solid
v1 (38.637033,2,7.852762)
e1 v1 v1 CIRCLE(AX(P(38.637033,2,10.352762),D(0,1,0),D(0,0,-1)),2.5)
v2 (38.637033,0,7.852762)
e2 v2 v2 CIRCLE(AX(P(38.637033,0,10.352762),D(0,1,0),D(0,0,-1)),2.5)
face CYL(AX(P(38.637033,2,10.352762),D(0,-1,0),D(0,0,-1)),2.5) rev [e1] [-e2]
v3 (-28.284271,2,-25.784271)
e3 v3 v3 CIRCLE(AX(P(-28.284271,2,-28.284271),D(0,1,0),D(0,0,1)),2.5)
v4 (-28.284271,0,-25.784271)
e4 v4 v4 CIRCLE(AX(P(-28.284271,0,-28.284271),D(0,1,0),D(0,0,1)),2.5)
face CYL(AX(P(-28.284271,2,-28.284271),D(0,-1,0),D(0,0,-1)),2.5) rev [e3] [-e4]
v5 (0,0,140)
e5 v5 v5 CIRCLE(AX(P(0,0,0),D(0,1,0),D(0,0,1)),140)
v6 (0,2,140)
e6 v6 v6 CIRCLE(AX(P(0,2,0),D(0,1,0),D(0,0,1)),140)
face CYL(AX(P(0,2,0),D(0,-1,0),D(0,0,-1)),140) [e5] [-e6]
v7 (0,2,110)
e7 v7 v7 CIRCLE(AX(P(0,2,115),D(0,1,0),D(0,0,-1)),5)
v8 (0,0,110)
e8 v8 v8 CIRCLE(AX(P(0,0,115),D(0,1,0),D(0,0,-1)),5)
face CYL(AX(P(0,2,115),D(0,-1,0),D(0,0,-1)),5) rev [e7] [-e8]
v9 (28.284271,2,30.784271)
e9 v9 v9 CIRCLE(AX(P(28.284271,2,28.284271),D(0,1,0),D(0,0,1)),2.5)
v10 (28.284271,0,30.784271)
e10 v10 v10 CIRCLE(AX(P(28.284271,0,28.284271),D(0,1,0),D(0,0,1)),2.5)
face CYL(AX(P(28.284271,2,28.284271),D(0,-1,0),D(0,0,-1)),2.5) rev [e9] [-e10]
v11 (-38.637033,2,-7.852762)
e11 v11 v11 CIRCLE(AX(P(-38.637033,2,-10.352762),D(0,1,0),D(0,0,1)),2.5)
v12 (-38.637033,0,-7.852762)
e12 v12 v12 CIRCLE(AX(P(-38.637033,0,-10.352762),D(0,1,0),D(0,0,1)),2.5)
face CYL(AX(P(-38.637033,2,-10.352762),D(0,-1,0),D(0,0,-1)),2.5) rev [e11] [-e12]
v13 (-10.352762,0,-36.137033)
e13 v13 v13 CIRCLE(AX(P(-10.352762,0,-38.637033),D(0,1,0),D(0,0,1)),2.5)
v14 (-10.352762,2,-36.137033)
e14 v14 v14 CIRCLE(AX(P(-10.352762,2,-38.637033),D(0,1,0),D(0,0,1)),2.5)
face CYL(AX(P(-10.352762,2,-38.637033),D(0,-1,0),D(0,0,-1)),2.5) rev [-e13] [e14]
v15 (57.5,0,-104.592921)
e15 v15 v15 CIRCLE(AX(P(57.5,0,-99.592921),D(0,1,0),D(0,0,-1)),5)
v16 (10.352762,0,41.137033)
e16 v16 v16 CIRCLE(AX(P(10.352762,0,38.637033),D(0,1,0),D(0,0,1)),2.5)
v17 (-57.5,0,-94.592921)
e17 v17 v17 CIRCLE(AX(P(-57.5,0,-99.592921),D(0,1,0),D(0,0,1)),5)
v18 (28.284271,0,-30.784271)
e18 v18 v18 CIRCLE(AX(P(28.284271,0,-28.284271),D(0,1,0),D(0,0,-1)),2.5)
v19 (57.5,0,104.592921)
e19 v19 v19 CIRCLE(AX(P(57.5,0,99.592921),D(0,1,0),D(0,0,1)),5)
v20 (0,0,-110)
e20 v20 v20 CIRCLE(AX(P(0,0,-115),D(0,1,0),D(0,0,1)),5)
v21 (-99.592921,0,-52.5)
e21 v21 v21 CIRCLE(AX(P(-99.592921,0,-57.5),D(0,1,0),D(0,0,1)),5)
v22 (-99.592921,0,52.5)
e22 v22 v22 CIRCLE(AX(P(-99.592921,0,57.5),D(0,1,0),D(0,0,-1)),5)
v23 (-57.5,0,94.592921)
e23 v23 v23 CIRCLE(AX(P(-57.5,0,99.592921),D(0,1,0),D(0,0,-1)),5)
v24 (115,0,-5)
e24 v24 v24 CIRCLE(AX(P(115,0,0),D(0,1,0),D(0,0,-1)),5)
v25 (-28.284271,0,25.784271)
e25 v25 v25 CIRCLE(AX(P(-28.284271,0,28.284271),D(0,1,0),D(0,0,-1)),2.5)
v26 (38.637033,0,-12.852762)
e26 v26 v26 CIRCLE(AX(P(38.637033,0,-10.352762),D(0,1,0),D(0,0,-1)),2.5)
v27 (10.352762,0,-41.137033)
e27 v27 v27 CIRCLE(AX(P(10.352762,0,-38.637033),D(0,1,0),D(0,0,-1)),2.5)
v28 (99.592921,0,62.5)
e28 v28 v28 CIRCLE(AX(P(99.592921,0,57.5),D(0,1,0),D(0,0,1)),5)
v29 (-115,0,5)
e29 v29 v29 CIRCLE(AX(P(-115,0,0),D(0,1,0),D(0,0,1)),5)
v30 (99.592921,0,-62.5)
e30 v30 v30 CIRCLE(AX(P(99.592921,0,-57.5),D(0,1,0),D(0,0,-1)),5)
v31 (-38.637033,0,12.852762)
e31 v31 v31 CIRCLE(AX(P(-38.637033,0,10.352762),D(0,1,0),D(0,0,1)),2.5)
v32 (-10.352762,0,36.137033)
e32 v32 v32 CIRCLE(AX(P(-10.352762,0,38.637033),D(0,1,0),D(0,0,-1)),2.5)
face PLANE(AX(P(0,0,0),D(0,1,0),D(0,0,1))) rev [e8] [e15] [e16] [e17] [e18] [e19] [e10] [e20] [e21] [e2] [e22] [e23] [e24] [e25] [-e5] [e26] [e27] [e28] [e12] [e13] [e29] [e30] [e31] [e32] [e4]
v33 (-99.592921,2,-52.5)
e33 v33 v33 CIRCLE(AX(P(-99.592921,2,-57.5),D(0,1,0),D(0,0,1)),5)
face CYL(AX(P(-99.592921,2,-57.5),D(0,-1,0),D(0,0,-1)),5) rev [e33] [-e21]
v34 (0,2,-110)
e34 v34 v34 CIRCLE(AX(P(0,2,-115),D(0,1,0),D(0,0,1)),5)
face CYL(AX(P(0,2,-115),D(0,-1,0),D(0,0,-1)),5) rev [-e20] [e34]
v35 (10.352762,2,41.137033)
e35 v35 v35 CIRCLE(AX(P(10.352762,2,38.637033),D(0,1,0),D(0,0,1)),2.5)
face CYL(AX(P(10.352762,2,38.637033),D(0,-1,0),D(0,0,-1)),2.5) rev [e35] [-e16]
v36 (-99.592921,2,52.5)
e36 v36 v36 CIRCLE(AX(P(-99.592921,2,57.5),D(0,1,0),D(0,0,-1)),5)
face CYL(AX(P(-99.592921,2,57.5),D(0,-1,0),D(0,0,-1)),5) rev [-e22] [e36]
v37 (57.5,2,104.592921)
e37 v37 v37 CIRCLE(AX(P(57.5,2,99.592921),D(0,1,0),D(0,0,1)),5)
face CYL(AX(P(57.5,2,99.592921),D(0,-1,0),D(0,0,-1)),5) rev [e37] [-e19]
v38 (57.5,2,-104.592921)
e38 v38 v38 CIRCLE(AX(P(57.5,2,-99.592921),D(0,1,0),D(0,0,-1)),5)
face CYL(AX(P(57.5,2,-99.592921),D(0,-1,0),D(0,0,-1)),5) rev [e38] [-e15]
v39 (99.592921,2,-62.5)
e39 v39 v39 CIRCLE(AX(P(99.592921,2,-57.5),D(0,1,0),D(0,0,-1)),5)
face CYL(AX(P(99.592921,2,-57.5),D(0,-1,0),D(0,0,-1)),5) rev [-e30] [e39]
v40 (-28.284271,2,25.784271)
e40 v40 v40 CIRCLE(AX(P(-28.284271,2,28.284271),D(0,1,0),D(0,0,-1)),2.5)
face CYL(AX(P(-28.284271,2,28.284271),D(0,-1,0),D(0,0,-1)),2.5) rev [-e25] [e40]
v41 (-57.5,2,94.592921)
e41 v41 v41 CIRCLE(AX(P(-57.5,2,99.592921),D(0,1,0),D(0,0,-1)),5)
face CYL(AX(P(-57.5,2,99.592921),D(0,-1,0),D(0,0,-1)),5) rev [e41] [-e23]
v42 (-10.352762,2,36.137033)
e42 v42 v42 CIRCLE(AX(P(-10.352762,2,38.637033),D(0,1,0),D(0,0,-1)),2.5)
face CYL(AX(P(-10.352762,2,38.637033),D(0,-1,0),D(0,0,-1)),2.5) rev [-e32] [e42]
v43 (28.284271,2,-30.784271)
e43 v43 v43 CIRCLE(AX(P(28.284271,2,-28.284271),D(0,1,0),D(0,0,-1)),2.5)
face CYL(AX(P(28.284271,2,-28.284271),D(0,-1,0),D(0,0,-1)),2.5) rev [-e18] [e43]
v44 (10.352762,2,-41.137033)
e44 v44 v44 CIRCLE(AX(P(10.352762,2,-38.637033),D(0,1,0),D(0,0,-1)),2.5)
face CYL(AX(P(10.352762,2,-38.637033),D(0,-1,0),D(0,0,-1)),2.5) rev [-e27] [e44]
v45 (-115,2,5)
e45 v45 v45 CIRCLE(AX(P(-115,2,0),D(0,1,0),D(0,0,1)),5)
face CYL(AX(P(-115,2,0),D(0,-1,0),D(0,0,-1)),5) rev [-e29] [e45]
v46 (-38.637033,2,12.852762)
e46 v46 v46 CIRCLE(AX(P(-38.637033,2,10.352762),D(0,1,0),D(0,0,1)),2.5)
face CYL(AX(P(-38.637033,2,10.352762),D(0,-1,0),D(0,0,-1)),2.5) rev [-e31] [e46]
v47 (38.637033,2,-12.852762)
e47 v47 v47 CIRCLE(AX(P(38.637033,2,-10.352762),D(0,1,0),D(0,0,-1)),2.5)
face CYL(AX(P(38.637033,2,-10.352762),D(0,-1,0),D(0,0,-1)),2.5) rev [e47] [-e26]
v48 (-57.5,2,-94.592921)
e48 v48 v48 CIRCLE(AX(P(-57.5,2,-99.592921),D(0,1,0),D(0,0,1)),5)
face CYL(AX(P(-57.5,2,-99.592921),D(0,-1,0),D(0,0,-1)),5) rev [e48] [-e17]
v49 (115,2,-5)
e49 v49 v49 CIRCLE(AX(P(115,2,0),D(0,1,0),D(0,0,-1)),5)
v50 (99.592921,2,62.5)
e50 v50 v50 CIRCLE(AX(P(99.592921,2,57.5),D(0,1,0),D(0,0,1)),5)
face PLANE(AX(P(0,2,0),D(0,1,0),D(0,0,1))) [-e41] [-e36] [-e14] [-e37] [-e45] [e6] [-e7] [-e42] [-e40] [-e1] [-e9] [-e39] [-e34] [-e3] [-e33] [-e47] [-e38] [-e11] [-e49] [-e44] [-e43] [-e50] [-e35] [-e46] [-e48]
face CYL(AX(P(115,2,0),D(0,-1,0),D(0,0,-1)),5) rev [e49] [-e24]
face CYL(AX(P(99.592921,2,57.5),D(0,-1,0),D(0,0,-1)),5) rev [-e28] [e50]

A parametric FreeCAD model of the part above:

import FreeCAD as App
import Part
import Sketcher

V = App.Vector
Q = App.Units.Quantity

doc = App.newDocument("Part")
body = doc.addObject("PartDesign::Body", "Body")

sketch1 = doc.addObject("Sketcher::SketchObject", "Sketch")
body.addObject(sketch1)
sketch1.AttachmentSupport = (doc.XZ_Plane, [""])
sketch1.MapMode = "FlatFace"
sketch1.addGeometry([
    Part.Circle(V(0, 0, 0), V(0, 0, 1), 140),
    Part.Circle(V(-99.6, -57.5, 0), V(0, 0, 1), 5),
    Part.Circle(V(-57.5, -99.6, 0), V(0, 0, 1), 5),
    Part.Circle(V(0, -115, 0), V(0, 0, 1), 5),
    Part.Circle(V(-38.6, -10.4, 0), V(0, 0, 1), 2.5),
    Part.Circle(V(-10.4, -38.6, 0), V(0, 0, 1), 2.5),
    Part.Circle(V(-28.3, -28.3, 0), V(0, 0, 1), 2.5),
    Part.Circle(V(-115, 0, 0), V(0, 0, 1), 5),
    Part.Circle(V(-99.6, 57.5, 0), V(0, 0, 1), 5),
    Part.Circle(V(-38.6, 10.4, 0), V(0, 0, 1), 2.5),
    Part.Circle(V(-28.3, 28.3, 0), V(0, 0, 1), 2.5),
    Part.Circle(V(-10.4, 38.6, 0), V(0, 0, 1), 2.5),
    Part.Circle(V(-57.5, 99.6, 0), V(0, 0, 1), 5),
    Part.Circle(V(57.5, -99.6, 0), V(0, 0, 1), 5),
    Part.Circle(V(10.4, -38.6, 0), V(0, 0, 1), 2.5),
    Part.Circle(V(28.3, -28.3, 0), V(0, 0, 1), 2.5),
    Part.Circle(V(38.6, -10.4, 0), V(0, 0, 1), 2.5),
    Part.Circle(V(99.6, -57.5, 0), V(0, 0, 1), 5),
    Part.Circle(V(115, 0, 0), V(0, 0, 1), 5),
    Part.Circle(V(28.3, 28.3, 0), V(0, 0, 1), 2.5),
    Part.Circle(V(10.4, 38.6, 0), V(0, 0, 1), 2.5),
    Part.Circle(V(38.6, 10.4, 0), V(0, 0, 1), 2.5),
    Part.Circle(V(0, 115, 0), V(0, 0, 1), 5),
    Part.Circle(V(57.5, 99.6, 0), V(0, 0, 1), 5),
    Part.Circle(V(99.6, 57.5, 0), V(0, 0, 1), 5),
], False)
sketch1.addConstraint([
    Sketcher.Constraint("Coincident", 0, 3, -1, 1),
    Sketcher.Constraint("Equal", 1, 2),
    Sketcher.Constraint("Equal", 2, 3),
    Sketcher.Constraint("Equal", 4, 5),
    Sketcher.Constraint("Equal", 5, 6),
    Sketcher.Constraint("Equal", 3, 7),
    Sketcher.Constraint("Equal", 7, 8),
    Sketcher.Constraint("Equal", 6, 9),
    Sketcher.Constraint("Equal", 9, 10),
    Sketcher.Constraint("Equal", 10, 11),
    Sketcher.Constraint("Equal", 8, 12),
    Sketcher.Constraint("Equal", 12, 13),
    Sketcher.Constraint("Equal", 11, 14),
    Sketcher.Constraint("Equal", 14, 15),
    Sketcher.Constraint("Equal", 15, 16),
    Sketcher.Constraint("Equal", 13, 17),
    Sketcher.Constraint("Equal", 17, 18),
    Sketcher.Constraint("Equal", 16, 19),
    Sketcher.Constraint("Equal", 19, 20),
    Sketcher.Constraint("Equal", 20, 21),
    Sketcher.Constraint("Equal", 18, 22),
    Sketcher.Constraint("Equal", 22, 23),
    Sketcher.Constraint("Equal", 23, 24),
    Sketcher.Constraint("Symmetric", 12, 3, 13, 3, -1, 1),
    Sketcher.Constraint("Symmetric", 11, 3, 14, 3, -1, 1),
    Sketcher.Constraint("Symmetric", 10, 3, 15, 3, -1, 1),
    Sketcher.Constraint("Symmetric", 9, 3, 16, 3, -1, 1),
    Sketcher.Constraint("Symmetric", 8, 3, 17, 3, -1, 1),
    Sketcher.Constraint("Symmetric", 7, 3, 18, 3, -1, 1),
    Sketcher.Constraint("Symmetric", 6, 3, 19, 3, -1, 1),
    Sketcher.Constraint("Symmetric", 5, 3, 20, 3, -1, 1),
    Sketcher.Constraint("Symmetric", 4, 3, 21, 3, -1, 1),
    Sketcher.Constraint("Symmetric", 3, 3, 22, 3, -1, 1),
    Sketcher.Constraint("Symmetric", 2, 3, 23, 3, -1, 1),
    Sketcher.Constraint("Symmetric", 1, 3, 24, 3, -1, 1),
    Sketcher.Constraint("Symmetric", 2, 3, 13, 3, -2),
    Sketcher.Constraint("Symmetric", 5, 3, 14, 3, -2),
    Sketcher.Constraint("Symmetric", 6, 3, 15, 3, -2),
    Sketcher.Constraint("Symmetric", 4, 3, 16, 3, -2),
    Sketcher.Constraint("Symmetric", 1, 3, 17, 3, -2),
    Sketcher.Constraint("PointOnObject", 3, 3, -2),
    Sketcher.Constraint("PointOnObject", 7, 3, -1),
    Sketcher.Constraint("Diameter", 0, Q("280 mm")),
    Sketcher.Constraint("Diameter", 1, Q("10 mm")),
    Sketcher.Constraint("Diameter", 4, Q("5 mm")),
    Sketcher.Constraint("DistanceY", 3, 3, -1, 1, Q("115 mm")),
    Sketcher.Constraint("DistanceX", 7, 3, -1, 1, Q("115 mm")),
    Sketcher.Constraint("DistanceY", 1, 3, 8, 3, Q("115 mm")),
    Sketcher.Constraint("DistanceX", 2, 3, 13, 3, Q("115 mm")),
    Sketcher.Constraint("DistanceX", 1, 3, -1, 1, Q("99.592921 mm")),
    Sketcher.Constraint("DistanceY", 2, 3, -1, 1, Q("99.592921 mm")),
    Sketcher.Constraint("DistanceY", 4, 3, -1, 1, Q("10.352762 mm")),
    Sketcher.Constraint("DistanceX", 5, 3, -1, 1, Q("10.352762 mm")),
    Sketcher.Constraint("DistanceX", 6, 3, -1, 1, Q("28.284271 mm")),
    Sketcher.Constraint("DistanceY", 6, 3, -1, 1, Q("28.284271 mm")),
    Sketcher.Constraint("DistanceX", 1, 3, 4, 3, Q("60.955888 mm")),
    Sketcher.Constraint("DistanceY", 5, 3, 4, 3, Q("28.284271 mm")),
])
pad1 = doc.addObject("PartDesign::Pad", "Pad")
body.addObject(pad1)
pad1.Profile = sketch1
pad1.Length = 2
pad1.Reversed = True

doc.recompute()
